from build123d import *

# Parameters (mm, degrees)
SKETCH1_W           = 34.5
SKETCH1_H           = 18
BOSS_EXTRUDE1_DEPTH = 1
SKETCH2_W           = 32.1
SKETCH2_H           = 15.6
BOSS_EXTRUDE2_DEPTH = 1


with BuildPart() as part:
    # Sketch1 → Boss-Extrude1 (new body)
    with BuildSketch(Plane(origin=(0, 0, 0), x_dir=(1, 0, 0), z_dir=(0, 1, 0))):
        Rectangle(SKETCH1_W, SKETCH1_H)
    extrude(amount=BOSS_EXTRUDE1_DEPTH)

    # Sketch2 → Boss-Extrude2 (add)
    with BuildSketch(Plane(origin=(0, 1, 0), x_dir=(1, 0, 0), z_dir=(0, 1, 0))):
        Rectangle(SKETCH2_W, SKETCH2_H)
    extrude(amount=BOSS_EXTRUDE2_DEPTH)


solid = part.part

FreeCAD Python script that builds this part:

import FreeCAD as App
import Part
import Sketcher

V = App.Vector
Q = App.Units.Quantity

doc = App.newDocument("Part")
body = doc.addObject("PartDesign::Body", "Body")

# Sketch on XZ plane
sketch1 = body.newObject("Sketcher::SketchObject", "Sketch")
sketch1.AttachmentSupport = (doc.getObject("XZ_Plane"), [""])
sketch1.MapMode = "FlatFace"
sketch1.addGeometry(Part.LineSegment(V(-17, -9, 0), V(-17, 9, 0)), False)
sketch1.addGeometry(Part.LineSegment(V(-17, 9, 0), V(17, 9, 0)), False)
sketch1.addGeometry(Part.LineSegment(V(17, 9, 0), V(17, -9, 0)), False)
sketch1.addGeometry(Part.LineSegment(V(17, -9, 0), V(-17, -9, 0)), False)
sketch1.addConstraint(Sketcher.Constraint("Coincident", 0, 2, 1, 1))
sketch1.addConstraint(Sketcher.Constraint("Coincident", 1, 2, 2, 1))
sketch1.addConstraint(Sketcher.Constraint("Coincident", 2, 2, 3, 1))
sketch1.addConstraint(Sketcher.Constraint("Coincident", 3, 2, 0, 1))
sketch1.addConstraint(Sketcher.Constraint("Vertical", 0))
sketch1.addConstraint(Sketcher.Constraint("Horizontal", 1))
sketch1.addConstraint(Sketcher.Constraint("Vertical", 2))
sketch1.addConstraint(Sketcher.Constraint("Horizontal", 3))
sketch1.addConstraint(Sketcher.Constraint("Symmetric", 0, 2, 2, 2, -1, 1))
sketch1.addConstraint(Sketcher.Constraint("DistanceY", 0, 1, 0, 2, Q("18 mm")))
sketch1.addConstraint(Sketcher.Constraint("DistanceX", 1, 1, 1, 2, Q("34.5 mm")))
pad1 = body.newObject("PartDesign::Pad", "Pad")
pad1.Profile = sketch1
pad1.Length = 1
pad1.Reversed = True

# Sketch on XZ plane
sketch2 = body.newObject("Sketcher::SketchObject", "Sketch001")
sketch2.AttachmentSupport = (doc.getObject("XZ_Plane"), [""])
sketch2.MapMode = "FlatFace"
sketch2.AttachmentOffset = App.Placement(V(0, 0, -1), App.Rotation())
sketch2.addGeometry(Part.LineSegment(V(-16, -8, 0), V(-16, 8, 0)), False)
sketch2.addGeometry(Part.LineSegment(V(-16, 8, 0), V(16, 8, 0)), False)
sketch2.addGeometry(Part.LineSegment(V(16, 8, 0), V(16, -8, 0)), False)
sketch2.addGeometry(Part.LineSegment(V(16, -8, 0), V(-16, -8, 0)), False)
sketch2.addConstraint(Sketcher.Constraint("Coincident", 0, 2, 1, 1))
sketch2.addConstraint(Sketcher.Constraint("Coincident", 1, 2, 2, 1))
sketch2.addConstraint(Sketcher.Constraint("Coincident", 2, 2, 3, 1))
sketch2.addConstraint(Sketcher.Constraint("Coincident", 3, 2, 0, 1))
sketch2.addConstraint(Sketcher.Constraint("Vertical", 0))
sketch2.addConstraint(Sketcher.Constraint("Horizontal", 1))
sketch2.addConstraint(Sketcher.Constraint("Vertical", 2))
sketch2.addConstraint(Sketcher.Constraint("Horizontal", 3))
sketch2.addConstraint(Sketcher.Constraint("Symmetric", 0, 2, 2, 2, -1, 1))
sketch2.addConstraint(Sketcher.Constraint("DistanceX", 1, 1, 1, 2, Q("32.1 mm")))
sketch2.addConstraint(Sketcher.Constraint("DistanceY", 0, 1, 0, 2, Q("15.6 mm")))
pad2 = body.newObject("PartDesign::Pad", "Pad001")
pad2.Profile = sketch2
pad2.Length = 1
pad2.Reversed = True

doc.recompute()
